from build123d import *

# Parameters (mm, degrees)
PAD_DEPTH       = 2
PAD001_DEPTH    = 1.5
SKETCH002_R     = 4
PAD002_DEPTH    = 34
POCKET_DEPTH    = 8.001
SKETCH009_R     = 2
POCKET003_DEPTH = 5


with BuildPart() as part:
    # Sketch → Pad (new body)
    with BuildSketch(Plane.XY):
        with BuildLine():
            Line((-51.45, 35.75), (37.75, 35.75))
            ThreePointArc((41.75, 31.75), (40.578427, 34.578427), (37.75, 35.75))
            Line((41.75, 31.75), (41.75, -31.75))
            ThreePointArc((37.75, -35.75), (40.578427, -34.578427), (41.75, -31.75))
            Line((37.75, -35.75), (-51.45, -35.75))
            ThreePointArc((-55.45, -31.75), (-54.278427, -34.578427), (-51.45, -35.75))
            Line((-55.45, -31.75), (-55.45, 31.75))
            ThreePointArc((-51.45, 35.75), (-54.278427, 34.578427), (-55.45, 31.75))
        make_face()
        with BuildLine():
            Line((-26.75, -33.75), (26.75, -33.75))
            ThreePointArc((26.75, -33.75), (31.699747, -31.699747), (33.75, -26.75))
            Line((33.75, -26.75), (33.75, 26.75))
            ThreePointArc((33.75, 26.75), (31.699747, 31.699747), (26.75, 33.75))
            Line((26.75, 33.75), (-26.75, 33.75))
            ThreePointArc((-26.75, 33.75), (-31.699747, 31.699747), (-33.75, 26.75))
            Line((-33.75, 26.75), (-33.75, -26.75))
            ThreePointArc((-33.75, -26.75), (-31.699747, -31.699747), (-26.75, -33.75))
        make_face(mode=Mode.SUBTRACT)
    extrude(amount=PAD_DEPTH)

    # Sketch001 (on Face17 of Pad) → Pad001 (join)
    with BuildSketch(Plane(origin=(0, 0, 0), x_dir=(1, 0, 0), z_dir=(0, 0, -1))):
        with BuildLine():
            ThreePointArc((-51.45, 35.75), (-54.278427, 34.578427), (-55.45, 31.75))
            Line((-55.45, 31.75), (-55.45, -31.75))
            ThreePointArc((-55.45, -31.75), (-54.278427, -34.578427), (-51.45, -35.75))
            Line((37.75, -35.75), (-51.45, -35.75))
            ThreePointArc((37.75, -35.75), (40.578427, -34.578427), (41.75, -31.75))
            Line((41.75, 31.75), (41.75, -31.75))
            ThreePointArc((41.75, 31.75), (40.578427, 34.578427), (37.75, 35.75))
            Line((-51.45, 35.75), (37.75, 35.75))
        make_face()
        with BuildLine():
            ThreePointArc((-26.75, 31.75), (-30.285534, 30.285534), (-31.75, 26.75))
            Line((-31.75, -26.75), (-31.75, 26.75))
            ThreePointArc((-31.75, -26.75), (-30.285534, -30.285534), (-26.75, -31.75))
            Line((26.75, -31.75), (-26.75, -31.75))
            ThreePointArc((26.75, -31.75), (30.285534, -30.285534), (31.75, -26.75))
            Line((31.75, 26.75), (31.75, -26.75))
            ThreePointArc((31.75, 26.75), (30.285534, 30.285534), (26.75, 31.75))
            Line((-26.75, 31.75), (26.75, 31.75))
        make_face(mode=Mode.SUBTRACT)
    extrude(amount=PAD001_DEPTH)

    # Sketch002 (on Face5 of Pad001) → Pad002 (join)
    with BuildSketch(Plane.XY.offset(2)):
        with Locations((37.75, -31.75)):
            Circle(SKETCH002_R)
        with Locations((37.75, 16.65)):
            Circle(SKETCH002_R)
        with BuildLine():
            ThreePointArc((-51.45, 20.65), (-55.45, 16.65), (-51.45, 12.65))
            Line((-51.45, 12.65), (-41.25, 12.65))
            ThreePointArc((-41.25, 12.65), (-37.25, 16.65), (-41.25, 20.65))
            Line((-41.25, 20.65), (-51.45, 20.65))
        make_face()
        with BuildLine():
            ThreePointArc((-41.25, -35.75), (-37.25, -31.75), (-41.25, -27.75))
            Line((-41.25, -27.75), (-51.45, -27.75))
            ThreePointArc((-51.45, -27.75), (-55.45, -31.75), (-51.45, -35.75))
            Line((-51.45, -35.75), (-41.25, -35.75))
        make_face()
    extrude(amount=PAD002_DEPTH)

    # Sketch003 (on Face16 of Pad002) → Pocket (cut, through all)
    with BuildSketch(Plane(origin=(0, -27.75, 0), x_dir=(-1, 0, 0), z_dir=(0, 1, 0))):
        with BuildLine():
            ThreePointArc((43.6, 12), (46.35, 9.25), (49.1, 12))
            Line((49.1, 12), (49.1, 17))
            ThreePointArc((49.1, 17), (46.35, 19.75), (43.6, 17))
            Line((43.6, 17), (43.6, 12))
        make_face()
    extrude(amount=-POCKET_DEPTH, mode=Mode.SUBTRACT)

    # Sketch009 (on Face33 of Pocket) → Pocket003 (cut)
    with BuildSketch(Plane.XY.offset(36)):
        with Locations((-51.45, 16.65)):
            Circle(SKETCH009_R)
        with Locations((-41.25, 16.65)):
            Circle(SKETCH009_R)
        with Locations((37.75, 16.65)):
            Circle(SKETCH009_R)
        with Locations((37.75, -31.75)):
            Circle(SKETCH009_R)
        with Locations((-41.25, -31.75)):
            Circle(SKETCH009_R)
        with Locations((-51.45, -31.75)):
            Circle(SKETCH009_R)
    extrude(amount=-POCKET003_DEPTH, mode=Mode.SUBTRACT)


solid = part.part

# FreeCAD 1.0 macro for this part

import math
import FreeCAD as App
import Part
import Sketcher
Q = App.Units.Quantity

doc = App.newDocument("Part")
body = doc.addObject("PartDesign::Body", "Body")

# Sketch on XY plane
sketch1 = body.newObject("Sketcher::SketchObject", "Sketch")
sketch1.AttachmentSupport = (doc.getObject("XY_Plane"), [""])
sketch1.MapMode = "FlatFace"
sketch1.addGeometry([
    Part.LineSegment(App.Vector(37.75, 35.75, 0), App.Vector(-51.45, 35.75, 0)),  # 0
    Part.ArcOfCircle(Part.Circle(App.Vector(-51.45, 31.75, 0), App.Vector(0, 0, 1), 4), math.radians(90.000006), math.radians(179.999994)),  # 1
    Part.LineSegment(App.Vector(-55.45, 31.75, 0), App.Vector(-55.45, -31.75, 0)),  # 2
    Part.ArcOfCircle(Part.Circle(App.Vector(-51.45, -31.75, 0), App.Vector(0, 0, 1), 4), math.radians(-179.999994), math.radians(-90.000006)),  # 3
    Part.LineSegment(App.Vector(-51.45, -35.75, 0), App.Vector(37.75, -35.75, 0)),  # 4
    Part.ArcOfCircle(Part.Circle(App.Vector(37.75, -31.75, 0), App.Vector(0, 0, 1), 4), math.radians(-89.999994), math.radians(-0.000006)),  # 5
    Part.LineSegment(App.Vector(41.75, -31.75, 0), App.Vector(41.75, 31.75, 0)),  # 6
    Part.ArcOfCircle(Part.Circle(App.Vector(37.75, 31.75, 0), App.Vector(0, 0, 1), 4), math.radians(0.000006), math.radians(89.999994)),  # 7
    Part.ArcOfCircle(Part.Circle(App.Vector(-26.749998, -26.749998, 0), App.Vector(0, 0, 1), 7.000002), math.radians(-179.999987), math.radians(-90.000013)),  # 8
    Part.LineSegment(App.Vector(-33.75, -26.75, 0), App.Vector(-33.75, 26.75, 0)),  # 9
    Part.ArcOfCircle(Part.Circle(App.Vector(-26.749998, 26.749998, 0), App.Vector(0, 0, 1), 7.000002), math.radians(90.000013), math.radians(179.999987)),  # 10
    Part.LineSegment(App.Vector(-26.75, 33.75, 0), App.Vector(26.75, 33.75, 0)),  # 11
    Part.ArcOfCircle(Part.Circle(App.Vector(26.749998, 26.749998, 0), App.Vector(0, 0, 1), 7.000002), math.radians(0.000013), math.radians(89.999987)),  # 12
    Part.LineSegment(App.Vector(33.75, 26.75, 0), App.Vector(33.75, -26.75, 0)),  # 13
    Part.ArcOfCircle(Part.Circle(App.Vector(26.749998, -26.749998, 0), App.Vector(0, 0, 1), 7.000002), math.radians(-89.999987), math.radians(-0.000013)),  # 14
    Part.LineSegment(App.Vector(26.75, -33.75, 0), App.Vector(-26.75, -33.75, 0)),  # 15
], False)
sketch1.addConstraint([
    Sketcher.Constraint("Tangent", 0, 2, 1, 1),
    Sketcher.Constraint("Tangent", 1, 2, 2, 1),
    Sketcher.Constraint("Tangent", 2, 2, 3, 1),
    Sketcher.Constraint("Tangent", 3, 2, 4, 1),
    Sketcher.Constraint("Tangent", 4, 2, 5, 1),
    Sketcher.Constraint("Tangent", 5, 2, 6, 1),
    Sketcher.Constraint("Tangent", 6, 2, 7, 1),
    Sketcher.Constraint("Tangent", 7, 2, 0, 1),
    Sketcher.Constraint("Tangent", 8, 1, 9, 1),
    Sketcher.Constraint("Tangent", 9, 2, 10, 2),
    Sketcher.Constraint("Tangent", 10, 1, 11, 1),
    Sketcher.Constraint("Tangent", 11, 2, 12, 2),
    Sketcher.Constraint("Tangent", 12, 1, 13, 1),
    Sketcher.Constraint("Tangent", 13, 2, 14, 2),
    Sketcher.Constraint("Tangent", 14, 1, 15, 1),
    Sketcher.Constraint("Tangent", 15, 2, 8, 2),
    Sketcher.Constraint("Horizontal", 0),
    Sketcher.Constraint("Vertical", 2),
    Sketcher.Constraint("Horizontal", 4),
    Sketcher.Constraint("Vertical", 6),
    Sketcher.Constraint("Vertical", 9),
    Sketcher.Constraint("Horizontal", 11),
    Sketcher.Constraint("Vertical", 13),
    Sketcher.Constraint("Horizontal", 15),
    Sketcher.Constraint("Equal", 1, 3),
    Sketcher.Constraint("Equal", 3, 5),
    Sketcher.Constraint("Equal", 5, 7),
    Sketcher.Constraint("Equal", 8, 10),
    Sketcher.Constraint("Equal", 10, 12),
    Sketcher.Constraint("Equal", 12, 14),
    Sketcher.Constraint("Symmetric", 8, 3, 12, 3, -1, 1),
    Sketcher.Constraint("Equal", 15, 9),
    Sketcher.Constraint("Radius", 1, Q("4 mm")),
    Sketcher.Constraint("Radius", 8, Q("7.000002 mm")),
    Sketcher.Constraint("DistanceX", 0, 2, 0, 1, Q("89.2 mm")),
    Sketcher.Constraint("DistanceX", 11, 1, 11, 2, Q("53.5 mm")),
    Sketcher.Constraint("DistanceY", 2, 2, 2, 1, Q("63.5 mm")),
    Sketcher.Constraint("DistanceY", 3, 3, 8, 3, Q("5.000001 mm")),
    Sketcher.Constraint("DistanceX", 12, 3, 7, 3, Q("11.000001 mm")),
])
pad1 = body.newObject("PartDesign::Pad", "Pad")
pad1.Profile = sketch1
pad1.Length = 2

# Sketch on XY plane
sketch2 = body.newObject("Sketcher::SketchObject", "Sketch001")
sketch2.AttachmentSupport = (doc.getObject("XY_Plane"), [""])
sketch2.MapMode = "FlatFace"
sketch2.addGeometry([
    Part.ArcOfCircle(Part.Circle(App.Vector(-51.45, -31.75, 0), App.Vector(0, 0, 1), 4), math.radians(-179.999994), math.radians(-90.000006)),  # 0
    Part.LineSegment(App.Vector(-55.45, -31.75, 0), App.Vector(-55.45, 31.75, 0)),  # 1
    Part.ArcOfCircle(Part.Circle(App.Vector(-51.45, 31.75, 0), App.Vector(0, 0, 1), 4), math.radians(90.000006), math.radians(179.999994)),  # 2
    Part.LineSegment(App.Vector(-51.45, 35.75, 0), App.Vector(37.75, 35.75, 0)),  # 3
    Part.ArcOfCircle(Part.Circle(App.Vector(37.75, 31.75, 0), App.Vector(0, 0, 1), 4), math.radians(0.000006), math.radians(89.999994)),  # 4
    Part.LineSegment(App.Vector(41.75, 31.75, 0), App.Vector(41.75, -31.75, 0)),  # 5
    Part.ArcOfCircle(Part.Circle(App.Vector(37.75, -31.75, 0), App.Vector(0, 0, 1), 4), math.radians(-89.999994), math.radians(-0.000006)),  # 6
    Part.LineSegment(App.Vector(37.75, -35.75, 0), App.Vector(-51.45, -35.75, 0)),  # 7
    Part.ArcOfCircle(Part.Circle(App.Vector(-26.75, -26.75, 0), App.Vector(0, 0, 1), 5), math.radians(179.999996), math.radians(270.000004)),  # 8
    Part.LineSegment(App.Vector(-26.75, -31.75, 0), App.Vector(26.75, -31.75, 0)),  # 9
    Part.ArcOfCircle(Part.Circle(App.Vector(26.75, -26.75, 0), App.Vector(0, 0, 1), 5), math.radians(-90.000004), math.radians(0.000004)),  # 10
    Part.LineSegment(App.Vector(31.75, -26.75, 0), App.Vector(31.75, 26.75, 0)),  # 11
    Part.ArcOfCircle(Part.Circle(App.Vector(26.75, 26.75, 0), App.Vector(0, 0, 1), 5), math.radians(-0.000004), math.radians(90.000004)),  # 12
    Part.LineSegment(App.Vector(26.75, 31.75, 0), App.Vector(-26.75, 31.75, 0)),  # 13
    Part.ArcOfCircle(Part.Circle(App.Vector(-26.75, 26.75, 0), App.Vector(0, 0, 1), 5), math.radians(89.999996), math.radians(180.000004)),  # 14
    Part.LineSegment(App.Vector(-31.75, 26.75, 0), App.Vector(-31.75, -26.75, 0)),  # 15
], False)
sketch2.addConstraint([
    Sketcher.Constraint("Tangent", 0, 1, 1, 1),
    Sketcher.Constraint("Tangent", 1, 2, 2, 2),
    Sketcher.Constraint("Tangent", 2, 1, 3, 1),
    Sketcher.Constraint("Tangent", 3, 2, 4, 2),
    Sketcher.Constraint("Tangent", 4, 1, 5, 1),
    Sketcher.Constraint("Tangent", 5, 2, 6, 2),
    Sketcher.Constraint("Tangent", 6, 1, 7, 1),
    Sketcher.Constraint("Tangent", 7, 2, 0, 2),
    Sketcher.Constraint("Tangent", 8, 2, 9, 1),
    Sketcher.Constraint("Tangent", 9, 2, 10, 1),
    Sketcher.Constraint("Tangent", 10, 2, 11, 1),
    Sketcher.Constraint("Tangent", 11, 2, 12, 1),
    Sketcher.Constraint("Tangent", 12, 2, 13, 1),
    Sketcher.Constraint("Tangent", 13, 2, 14, 1),
    Sketcher.Constraint("Tangent", 14, 2, 15, 1),
    Sketcher.Constraint("Tangent", 15, 2, 8, 1),
    Sketcher.Constraint("Vertical", 1),
    Sketcher.Constraint("Horizontal", 3),
    Sketcher.Constraint("Vertical", 5),
    Sketcher.Constraint("Horizontal", 7),
    Sketcher.Constraint("Horizontal", 9),
    Sketcher.Constraint("Vertical", 11),
    Sketcher.Constraint("Horizontal", 13),
    Sketcher.Constraint("Vertical", 15),
    Sketcher.Constraint("Equal", 0, 2),
    Sketcher.Constraint("Equal", 2, 4),
    Sketcher.Constraint("Equal", 4, 6),
    Sketcher.Constraint("Equal", 8, 10),
    Sketcher.Constraint("Equal", 10, 12),
    Sketcher.Constraint("Equal", 12, 14),
    Sketcher.Constraint("Symmetric", 8, 3, 12, 3, -1, 1),
    Sketcher.Constraint("Horizontal", 5, 2, 8, 2),
    Sketcher.Constraint("Horizontal", 4, 1, 12, 2),
    Sketcher.Constraint("Equal", 13, 11),
    Sketcher.Constraint("Radius", 0, Q("4 mm")),
    Sketcher.Constraint("Radius", 8, Q("5 mm")),
    Sketcher.Constraint("DistanceX", 3, 1, 3, 2, Q("89.2 mm")),
    Sketcher.Constraint("DistanceX", 9, 1, 9, 2, Q("53.5 mm")),
    Sketcher.Constraint("DistanceX", 10, 3, 6, 3, Q("10.999999 mm")),
])
pad2 = body.newObject("PartDesign::Pad", "Pad001")
pad2.Profile = sketch2
pad2.Length = 1.5
pad2.Reversed = True

# Sketch on XY plane
sketch3 = body.newObject("Sketcher::SketchObject", "Sketch002")
sketch3.AttachmentSupport = (doc.getObject("XY_Plane"), [""])
sketch3.MapMode = "FlatFace"
sketch3.AttachmentOffset = App.Placement(App.Vector(0, 0, 2), App.Rotation())
sketch3.addGeometry([
    Part.Circle(App.Vector(37.75, -31.75, 0), App.Vector(0, 0, 1), 4),  # 0
    Part.Circle(App.Vector(37.75, 16.65, 0), App.Vector(0, 0, 1), 4),  # 1
    Part.ArcOfCircle(Part.Circle(App.Vector(-51.45, 16.65, 0), App.Vector(0, 0, 1), 4), math.radians(90), math.radians(270)),  # 2
    Part.LineSegment(App.Vector(-51.45, 12.65, 0), App.Vector(-41.25, 12.65, 0)),  # 3
    Part.ArcOfCircle(Part.Circle(App.Vector(-41.25, 16.65, 0), App.Vector(0, 0, 1), 4), math.radians(-90), math.radians(90)),  # 4
    Part.LineSegment(App.Vector(-41.25, 20.65, 0), App.Vector(-51.45, 20.65, 0)),  # 5
    Part.ArcOfCircle(Part.Circle(App.Vector(-41.25, -31.75, 0), App.Vector(0, 0, 1), 4), math.radians(-90), math.radians(90)),  # 6
    Part.LineSegment(App.Vector(-41.25, -27.75, 0), App.Vector(-51.45, -27.75, 0)),  # 7
    Part.ArcOfCircle(Part.Circle(App.Vector(-51.45, -31.75, 0), App.Vector(0, 0, 1), 4), math.radians(90), math.radians(270)),  # 8
    Part.LineSegment(App.Vector(-51.45, -35.75, 0), App.Vector(-41.25, -35.75, 0)),  # 9
], False)
sketch3.addConstraint([
    Sketcher.Constraint("Tangent", 2, 2, 3, 1),
    Sketcher.Constraint("Tangent", 3, 2, 4, 1),
    Sketcher.Constraint("Tangent", 4, 2, 5, 1),
    Sketcher.Constraint("Tangent", 5, 2, 2, 1),
    Sketcher.Constraint("Tangent", 6, 2, 7, 1),
    Sketcher.Constraint("Tangent", 7, 2, 8, 1),
    Sketcher.Constraint("Tangent", 8, 2, 9, 1),
    Sketcher.Constraint("Tangent", 9, 2, 6, 1),
    Sketcher.Constraint("Horizontal", 3),
    Sketcher.Constraint("Horizontal", 5),
    Sketcher.Constraint("Horizontal", 7),
    Sketcher.Constraint("Horizontal", 9),
    Sketcher.Constraint("Equal", 0, 1),
    Sketcher.Constraint("Equal", 1, 2),
    Sketcher.Constraint("Equal", 4, 6),
    Sketcher.Constraint("Horizontal", 1, 3, 2, 3),
    Sketcher.Constraint("Horizontal", 0, 3, 6, 3),
    Sketcher.Constraint("Vertical", 0, 3, 1, 3),
    Sketcher.Constraint("Vertical", 4, 3, 6, 3),
    Sketcher.Constraint("Vertical", 2, 3, 8, 3),
    Sketcher.Constraint("Diameter", 0, Q("8 mm")),
    Sketcher.Constraint("DistanceX", 3, 1, 3, 2, Q("10.2 mm")),
    Sketcher.Constraint("DistanceX", 4, 3, 1, 3, Q("79 mm")),
    Sketcher.Constraint("DistanceY", 0, 3, 1, 3, Q("48.4 mm")),
    Sketcher.Constraint("DistanceX", -1, 1, 0, 3, Q("37.75 mm")),
    Sketcher.Constraint("DistanceY", 0, 3, -1, 1, Q("31.75 mm")),
])
pad3 = body.newObject("PartDesign::Pad", "Pad002")
pad3.Profile = sketch3
pad3.Length = 34

# Sketch on XZ plane
sketch4 = body.newObject("Sketcher::SketchObject", "Sketch003")
sketch4.AttachmentSupport = (doc.getObject("XZ_Plane"), [""])
sketch4.MapMode = "FlatFace"
sketch4.AttachmentOffset = App.Placement(App.Vector(0, 0, 27.75), App.Rotation())
sketch4.addGeometry([
    Part.ArcOfCircle(Part.Circle(App.Vector(-46.35, 12, 0), App.Vector(0, 0, 1), 2.75), math.radians(180), math.radians(360)),
    Part.LineSegment(App.Vector(-49.1, 12, 0), App.Vector(-49.1, 17, 0)),
    Part.ArcOfCircle(Part.Circle(App.Vector(-46.35, 17, 0), App.Vector(0, 0, 1), 2.75), math.radians(0), math.radians(180)),
    Part.LineSegment(App.Vector(-43.6, 17, 0), App.Vector(-43.6, 12, 0)),
], False)
sketch4.addConstraint([
    Sketcher.Constraint("Tangent", 0, 1, 1, 1),
    Sketcher.Constraint("Tangent", 1, 2, 2, 2),
    Sketcher.Constraint("Tangent", 2, 1, 3, 1),
    Sketcher.Constraint("Tangent", 3, 2, 0, 2),
    Sketcher.Constraint("Vertical", 1),
    Sketcher.Constraint("Vertical", 3),
    Sketcher.Constraint("DistanceY", 1, 1, 1, 2, Q("5 mm")),
    Sketcher.Constraint("Radius", 0, Q("2.75 mm")),
    Sketcher.Constraint("DistanceY", -1, 1, 0, 3, Q("12 mm")),
    Sketcher.Constraint("DistanceX", 0, 1, -1, 1, Q("49.1 mm")),
])
pocket1 = body.newObject("PartDesign::Pocket", "Pocket")
pocket1.Profile = sketch4
pocket1.Type = "ThroughAll"
pocket1.Reversed = True

# Sketch on XY plane
sketch5 = body.newObject("Sketcher::SketchObject", "Sketch004")
sketch5.AttachmentSupport = (doc.getObject("XY_Plane"), [""])
sketch5.MapMode = "FlatFace"
sketch5.AttachmentOffset = App.Placement(App.Vector(0, 0, 36), App.Rotation())
sketch5.addGeometry([
    Part.Circle(App.Vector(-51.45, 16.65, 0), App.Vector(0, 0, 1), 2),  # 0
    Part.Circle(App.Vector(-41.25, 16.65, 0), App.Vector(0, 0, 1), 2),  # 1
    Part.Circle(App.Vector(37.75, 16.65, 0), App.Vector(0, 0, 1), 2),  # 2
    Part.Circle(App.Vector(37.75, -31.75, 0), App.Vector(0, 0, 1), 2),  # 3
    Part.Circle(App.Vector(-41.25, -31.75, 0), App.Vector(0, 0, 1), 2),  # 4
    Part.Circle(App.Vector(-51.45, -31.75, 0), App.Vector(0, 0, 1), 2),  # 5
], False)
sketch5.addConstraint([
    Sketcher.Constraint("Equal", 0, 1),
    Sketcher.Constraint("Equal", 1, 2),
    Sketcher.Constraint("Equal", 2, 3),
    Sketcher.Constraint("Equal", 3, 4),
    Sketcher.Constraint("Equal", 4, 5),
    Sketcher.Constraint("Horizontal", 0, 3, 1, 3),
    Sketcher.Constraint("Horizontal", 1, 3, 2, 3),
    Sketcher.Constraint("Horizontal", 3, 3, 4, 3),
    Sketcher.Constraint("Horizontal", 4, 3, 5, 3),
    Sketcher.Constraint("Vertical", 2, 3, 3, 3),
    Sketcher.Constraint("Vertical", 1, 3, 4, 3),
    Sketcher.Constraint("Vertical", 0, 3, 5, 3),
    Sketcher.Constraint("Diameter", 0, Q("4 mm")),
    Sketcher.Constraint("DistanceX", 1, 3, 2, 3, Q("79 mm")),
    Sketcher.Constraint("DistanceX", 0, 3, 1, 3, Q("10.2 mm")),
    Sketcher.Constraint("DistanceY", 3, 3, 2, 3, Q("48.4 mm")),
    Sketcher.Constraint("DistanceX", 0, 3, -1, 1, Q("51.45 mm")),
    Sketcher.Constraint("DistanceY", -1, 1, 0, 3, Q("16.65 mm")),
])
pocket2 = body.newObject("PartDesign::Pocket", "Pocket001")
pocket2.Profile = sketch5
pocket2.Length = 5

doc.recompute()
